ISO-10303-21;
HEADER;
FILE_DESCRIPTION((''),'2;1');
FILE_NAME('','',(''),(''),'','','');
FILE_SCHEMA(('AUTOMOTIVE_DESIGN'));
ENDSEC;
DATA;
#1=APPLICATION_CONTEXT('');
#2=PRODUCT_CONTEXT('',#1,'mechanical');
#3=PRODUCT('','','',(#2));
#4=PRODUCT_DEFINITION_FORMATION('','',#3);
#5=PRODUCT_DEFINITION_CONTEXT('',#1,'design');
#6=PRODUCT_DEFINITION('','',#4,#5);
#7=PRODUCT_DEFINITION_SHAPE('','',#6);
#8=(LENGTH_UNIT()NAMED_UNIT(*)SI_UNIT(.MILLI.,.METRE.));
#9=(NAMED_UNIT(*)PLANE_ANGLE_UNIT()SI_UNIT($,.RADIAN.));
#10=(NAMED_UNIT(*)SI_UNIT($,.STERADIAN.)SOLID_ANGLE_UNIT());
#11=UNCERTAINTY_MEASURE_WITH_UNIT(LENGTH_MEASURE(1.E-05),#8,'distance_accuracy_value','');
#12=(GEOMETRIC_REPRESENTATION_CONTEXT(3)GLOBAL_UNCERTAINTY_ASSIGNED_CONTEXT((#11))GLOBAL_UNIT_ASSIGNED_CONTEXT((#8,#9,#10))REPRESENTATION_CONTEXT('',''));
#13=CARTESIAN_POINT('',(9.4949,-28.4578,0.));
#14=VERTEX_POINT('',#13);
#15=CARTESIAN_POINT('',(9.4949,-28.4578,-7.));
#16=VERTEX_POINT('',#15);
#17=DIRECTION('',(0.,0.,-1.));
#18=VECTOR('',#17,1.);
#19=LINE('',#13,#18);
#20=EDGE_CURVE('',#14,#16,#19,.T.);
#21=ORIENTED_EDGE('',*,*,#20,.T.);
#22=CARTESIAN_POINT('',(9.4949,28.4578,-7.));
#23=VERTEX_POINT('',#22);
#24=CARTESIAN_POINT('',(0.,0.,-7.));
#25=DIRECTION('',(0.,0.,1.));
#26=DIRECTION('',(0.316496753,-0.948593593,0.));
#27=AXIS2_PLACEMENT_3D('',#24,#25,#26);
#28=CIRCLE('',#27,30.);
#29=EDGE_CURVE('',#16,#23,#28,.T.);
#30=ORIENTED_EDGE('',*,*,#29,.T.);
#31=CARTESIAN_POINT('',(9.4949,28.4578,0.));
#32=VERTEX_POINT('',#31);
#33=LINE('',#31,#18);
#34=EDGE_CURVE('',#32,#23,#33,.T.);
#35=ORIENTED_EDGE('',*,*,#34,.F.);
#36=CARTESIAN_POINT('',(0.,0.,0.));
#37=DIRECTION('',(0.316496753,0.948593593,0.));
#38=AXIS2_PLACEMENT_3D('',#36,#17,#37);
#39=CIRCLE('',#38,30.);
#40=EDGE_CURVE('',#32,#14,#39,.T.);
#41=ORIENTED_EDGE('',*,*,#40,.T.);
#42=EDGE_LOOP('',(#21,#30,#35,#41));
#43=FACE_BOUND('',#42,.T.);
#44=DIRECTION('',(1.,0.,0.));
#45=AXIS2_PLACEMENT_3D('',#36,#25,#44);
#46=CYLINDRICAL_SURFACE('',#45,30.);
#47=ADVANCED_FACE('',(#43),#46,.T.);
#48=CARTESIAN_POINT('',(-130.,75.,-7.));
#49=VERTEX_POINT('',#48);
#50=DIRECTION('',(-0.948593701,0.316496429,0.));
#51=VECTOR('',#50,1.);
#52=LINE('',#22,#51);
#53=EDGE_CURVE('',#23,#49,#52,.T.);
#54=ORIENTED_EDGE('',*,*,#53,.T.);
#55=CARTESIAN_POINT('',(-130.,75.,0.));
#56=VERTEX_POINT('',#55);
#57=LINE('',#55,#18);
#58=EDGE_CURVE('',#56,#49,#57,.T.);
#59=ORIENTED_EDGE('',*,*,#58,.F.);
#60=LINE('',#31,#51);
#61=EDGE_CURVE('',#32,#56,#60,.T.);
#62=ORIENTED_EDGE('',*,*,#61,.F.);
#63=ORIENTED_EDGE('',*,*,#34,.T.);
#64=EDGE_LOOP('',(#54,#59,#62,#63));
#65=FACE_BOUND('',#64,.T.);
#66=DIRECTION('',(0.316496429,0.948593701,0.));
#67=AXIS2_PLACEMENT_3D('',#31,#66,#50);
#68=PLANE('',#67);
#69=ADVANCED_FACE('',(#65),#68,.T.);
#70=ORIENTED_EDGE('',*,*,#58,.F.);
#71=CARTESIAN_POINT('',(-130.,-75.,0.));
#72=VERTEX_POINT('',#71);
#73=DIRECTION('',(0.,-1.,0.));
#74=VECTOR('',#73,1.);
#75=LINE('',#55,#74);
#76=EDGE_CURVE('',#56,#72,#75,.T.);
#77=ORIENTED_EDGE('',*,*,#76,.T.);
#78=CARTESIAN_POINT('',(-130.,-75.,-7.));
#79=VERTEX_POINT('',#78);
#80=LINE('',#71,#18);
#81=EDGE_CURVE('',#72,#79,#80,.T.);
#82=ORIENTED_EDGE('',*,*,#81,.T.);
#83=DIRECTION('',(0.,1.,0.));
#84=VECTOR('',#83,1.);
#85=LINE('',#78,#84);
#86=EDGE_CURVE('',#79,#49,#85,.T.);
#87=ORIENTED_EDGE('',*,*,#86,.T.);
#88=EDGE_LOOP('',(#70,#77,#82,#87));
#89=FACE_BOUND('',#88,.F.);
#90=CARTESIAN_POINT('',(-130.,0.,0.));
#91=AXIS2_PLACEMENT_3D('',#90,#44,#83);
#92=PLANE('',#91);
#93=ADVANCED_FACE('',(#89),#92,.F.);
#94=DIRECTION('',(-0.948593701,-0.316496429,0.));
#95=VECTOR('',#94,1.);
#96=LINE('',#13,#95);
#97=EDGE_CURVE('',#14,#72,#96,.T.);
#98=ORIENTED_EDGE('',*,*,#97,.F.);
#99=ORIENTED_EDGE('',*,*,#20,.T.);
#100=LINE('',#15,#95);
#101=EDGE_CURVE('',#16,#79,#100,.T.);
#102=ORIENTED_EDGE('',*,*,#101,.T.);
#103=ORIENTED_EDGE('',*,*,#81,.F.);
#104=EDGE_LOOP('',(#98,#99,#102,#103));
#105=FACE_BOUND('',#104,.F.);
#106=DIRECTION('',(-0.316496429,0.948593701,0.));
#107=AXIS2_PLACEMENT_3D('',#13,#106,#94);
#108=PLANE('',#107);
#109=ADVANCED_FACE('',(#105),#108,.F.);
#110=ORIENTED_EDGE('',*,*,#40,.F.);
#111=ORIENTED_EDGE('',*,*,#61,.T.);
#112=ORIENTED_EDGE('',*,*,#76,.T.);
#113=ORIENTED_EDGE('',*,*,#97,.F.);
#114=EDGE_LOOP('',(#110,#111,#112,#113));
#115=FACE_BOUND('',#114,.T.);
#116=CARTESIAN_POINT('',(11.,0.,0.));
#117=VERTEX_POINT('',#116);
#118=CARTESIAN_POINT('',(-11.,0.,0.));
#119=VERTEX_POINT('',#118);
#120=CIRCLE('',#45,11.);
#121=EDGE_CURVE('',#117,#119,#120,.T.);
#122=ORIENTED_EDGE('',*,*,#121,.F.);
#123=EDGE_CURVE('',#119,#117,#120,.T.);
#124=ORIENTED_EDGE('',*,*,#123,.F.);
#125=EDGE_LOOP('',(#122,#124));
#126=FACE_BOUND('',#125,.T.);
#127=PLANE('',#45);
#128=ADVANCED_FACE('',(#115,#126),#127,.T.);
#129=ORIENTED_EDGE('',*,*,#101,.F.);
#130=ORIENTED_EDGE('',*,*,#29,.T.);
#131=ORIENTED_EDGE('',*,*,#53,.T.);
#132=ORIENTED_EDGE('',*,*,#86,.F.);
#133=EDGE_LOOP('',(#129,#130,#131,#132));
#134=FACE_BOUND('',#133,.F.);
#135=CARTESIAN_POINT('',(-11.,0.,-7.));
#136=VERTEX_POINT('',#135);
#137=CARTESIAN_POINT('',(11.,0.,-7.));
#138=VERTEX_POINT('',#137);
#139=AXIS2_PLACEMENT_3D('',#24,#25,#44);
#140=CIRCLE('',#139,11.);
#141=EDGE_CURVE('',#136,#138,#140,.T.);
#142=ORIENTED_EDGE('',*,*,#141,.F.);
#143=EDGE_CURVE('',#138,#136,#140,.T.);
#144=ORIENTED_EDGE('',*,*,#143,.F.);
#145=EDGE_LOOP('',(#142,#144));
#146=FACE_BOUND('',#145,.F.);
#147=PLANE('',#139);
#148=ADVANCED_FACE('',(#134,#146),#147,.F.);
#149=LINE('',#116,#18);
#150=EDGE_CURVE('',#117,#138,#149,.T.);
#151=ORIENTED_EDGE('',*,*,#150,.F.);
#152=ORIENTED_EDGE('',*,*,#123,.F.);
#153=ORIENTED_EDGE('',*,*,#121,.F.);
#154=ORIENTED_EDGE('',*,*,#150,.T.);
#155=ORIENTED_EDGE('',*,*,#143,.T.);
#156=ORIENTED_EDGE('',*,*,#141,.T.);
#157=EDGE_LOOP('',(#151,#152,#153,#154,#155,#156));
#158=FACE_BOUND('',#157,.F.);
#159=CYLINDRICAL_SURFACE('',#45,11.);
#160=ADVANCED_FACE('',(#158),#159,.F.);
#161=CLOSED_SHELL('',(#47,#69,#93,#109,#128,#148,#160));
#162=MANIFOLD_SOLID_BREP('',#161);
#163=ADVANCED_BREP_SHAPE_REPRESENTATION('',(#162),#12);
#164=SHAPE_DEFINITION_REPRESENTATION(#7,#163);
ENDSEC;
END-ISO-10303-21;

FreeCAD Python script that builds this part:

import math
import FreeCAD as App
import Part
import Sketcher
from FreeCAD import Vector

doc = App.newDocument("Part")
body = doc.addObject("PartDesign::Body", "Body")

# Sketch on XY plane
sketch1 = doc.addObject("Sketcher::SketchObject", "Sketch")
body.addObject(sketch1)
sketch1.AttachmentSupport = (doc.XY_Plane, [""])
sketch1.MapMode = "FlatFace"
sketch1.addGeometry(Part.LineSegment(Vector(9.4949, 28.4578, 0), Vector(-130, 75, 0)), False)
sketch1.addGeometry(Part.LineSegment(Vector(-130, 75, 0), Vector(-130, -75, 0)), False)
sketch1.addGeometry(Part.LineSegment(Vector(-130, -75, 0), Vector(9.4949, -28.4578, 0)), False)
sketch1.addGeometry(Part.ArcOfCircle(Part.Circle(Vector(0, 0, 0), Vector(0, 0, 1), 30), math.radians(-71.548805), math.radians(71.548805)), False)
sketch1.addGeometry(Part.Circle(Vector(0, 0, 0), Vector(0, 0, 1), 11), False)
sketch1.addConstraint(Sketcher.Constraint("Coincident", 0, 2, 1, 1))
sketch1.addConstraint(Sketcher.Constraint("Coincident", 1, 2, 2, 1))
sketch1.addConstraint(Sketcher.Constraint("Tangent", 2, 2, 3, 1))
sketch1.addConstraint(Sketcher.Constraint("Tangent", 3, 2, 0, 1))
sketch1.addConstraint(Sketcher.Constraint("Vertical", 1))
sketch1.addConstraint(Sketcher.Constraint("Coincident", 3, 3, -1, 1))
sketch1.addConstraint(Sketcher.Constraint("Coincident", 4, 3, -1, 1))
sketch1.addConstraint(Sketcher.Constraint("Vertical", 2, 2, 3, 2))
sketch1.addConstraint(Sketcher.Constraint("Radius", 3, 30.0))
sketch1.addConstraint(Sketcher.Constraint("DistanceY", 1, 2, 1, 1, 150.0))
sketch1.addConstraint(Sketcher.Constraint("Diameter", 4, 22.0))
sketch1.addConstraint(Sketcher.Constraint("DistanceX", 0, 2, -1, 1, 130.0))
pad1 = doc.addObject("PartDesign::Pad", "Pad")
body.addObject(pad1)
pad1.Profile = sketch1
pad1.Length = 7
pad1.Reversed = True

doc.recompute()
